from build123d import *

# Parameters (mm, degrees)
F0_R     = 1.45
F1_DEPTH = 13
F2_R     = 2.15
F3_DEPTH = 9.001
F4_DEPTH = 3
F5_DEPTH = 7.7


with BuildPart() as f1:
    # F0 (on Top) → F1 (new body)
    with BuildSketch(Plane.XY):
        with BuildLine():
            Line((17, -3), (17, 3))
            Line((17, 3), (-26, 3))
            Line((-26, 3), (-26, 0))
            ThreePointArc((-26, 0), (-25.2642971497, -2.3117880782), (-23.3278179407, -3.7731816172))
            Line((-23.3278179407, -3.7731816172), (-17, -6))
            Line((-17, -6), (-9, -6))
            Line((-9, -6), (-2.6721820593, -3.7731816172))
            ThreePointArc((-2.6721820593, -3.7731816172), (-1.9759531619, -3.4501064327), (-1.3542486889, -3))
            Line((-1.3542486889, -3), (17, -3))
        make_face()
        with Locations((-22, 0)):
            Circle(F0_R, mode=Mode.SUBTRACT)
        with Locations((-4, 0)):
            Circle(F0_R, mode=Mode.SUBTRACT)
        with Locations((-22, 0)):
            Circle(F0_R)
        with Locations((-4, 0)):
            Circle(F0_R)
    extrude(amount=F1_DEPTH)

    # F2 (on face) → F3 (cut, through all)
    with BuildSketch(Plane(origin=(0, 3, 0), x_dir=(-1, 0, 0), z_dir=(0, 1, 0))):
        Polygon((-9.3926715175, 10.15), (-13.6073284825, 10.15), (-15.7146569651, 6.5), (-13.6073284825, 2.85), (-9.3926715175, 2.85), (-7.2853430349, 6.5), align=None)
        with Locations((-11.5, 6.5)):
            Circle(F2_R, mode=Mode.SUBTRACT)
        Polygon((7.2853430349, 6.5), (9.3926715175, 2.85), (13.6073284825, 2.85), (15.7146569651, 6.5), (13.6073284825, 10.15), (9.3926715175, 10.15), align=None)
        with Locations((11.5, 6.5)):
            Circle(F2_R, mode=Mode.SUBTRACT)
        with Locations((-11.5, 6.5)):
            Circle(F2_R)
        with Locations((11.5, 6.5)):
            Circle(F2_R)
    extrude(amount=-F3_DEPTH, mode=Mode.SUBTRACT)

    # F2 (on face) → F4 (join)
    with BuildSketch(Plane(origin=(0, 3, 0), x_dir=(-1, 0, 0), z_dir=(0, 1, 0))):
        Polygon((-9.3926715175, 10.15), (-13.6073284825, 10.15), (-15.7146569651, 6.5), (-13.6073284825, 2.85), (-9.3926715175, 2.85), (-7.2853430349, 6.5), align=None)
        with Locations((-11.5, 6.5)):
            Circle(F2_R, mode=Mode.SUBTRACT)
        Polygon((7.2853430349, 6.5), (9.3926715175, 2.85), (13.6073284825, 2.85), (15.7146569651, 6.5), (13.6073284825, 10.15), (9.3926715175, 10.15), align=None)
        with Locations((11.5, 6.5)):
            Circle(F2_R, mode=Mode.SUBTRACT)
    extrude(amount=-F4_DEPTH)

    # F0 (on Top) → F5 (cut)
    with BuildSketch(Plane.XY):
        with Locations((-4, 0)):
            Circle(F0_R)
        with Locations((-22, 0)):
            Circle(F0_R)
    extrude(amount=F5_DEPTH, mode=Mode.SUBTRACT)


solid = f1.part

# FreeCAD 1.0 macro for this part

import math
import FreeCAD as App
import Part
import Sketcher
from FreeCAD import Vector
Q = App.Units.Quantity

doc = App.newDocument("Part")
params = doc.addObject("Spreadsheet::Sheet", "Params")
for row, (alias, value) in enumerate([
    ("sketch1_radius", "4 mm"),
    ("sketch1_width", "43 mm"),
    ("sketch1_width2", "8 mm"),
    ("sketch1_height", "6 mm"),
    ("sketch1_height2", "3 mm"),
    ("pad1_length", "13 mm"),
    ("sketch3_diameter", "4.3 mm"),
    ("pad2_length", "3 mm"),
    ("sketch4_diameter", "2.9 mm"),
    ("pocket2_length", "7.7 mm"),
], start=1):
    params.set(f"A{row}", alias)
    params.set(f"B{row}", "=" + value)
    params.setAlias(f"B{row}", alias)

body = doc.addObject("PartDesign::Body", "Body")

# Sketch on XY plane
sketch1 = doc.addObject("Sketcher::SketchObject", "Sketch")
body.addObject(sketch1)
sketch1.AttachmentSupport = (doc.XY_Plane, [""])
sketch1.MapMode = "FlatFace"
sketch1.addGeometry([
    Part.LineSegment(Vector(17, -3, 0), Vector(17, 3, 0)),  # 0
    Part.LineSegment(Vector(17, 3, 0), Vector(-26, 3, 0)),  # 1
    Part.LineSegment(Vector(-26, 3, 0), Vector(-26, 0, 0)),  # 2
    Part.ArcOfCircle(Part.Circle(Vector(-22, 0, 0), Vector(0, 0, 1), 4), math.radians(180), math.radians(250.612552)),  # 3
    Part.LineSegment(Vector(-23.327818, -3.773182, 0), Vector(-17, -6, 0)),  # 4
    Part.LineSegment(Vector(-17, -6, 0), Vector(-9, -6, 0)),  # 5
    Part.LineSegment(Vector(-9, -6, 0), Vector(-2.672182, -3.773182, 0)),  # 6
    Part.ArcOfCircle(Part.Circle(Vector(-4, 0, 0), Vector(0, 0, 1), 4), math.radians(-70.612552), math.radians(-48.590378)),  # 7
    Part.LineSegment(Vector(-1.354249, -3, 0), Vector(17, -3, 0)),  # 8
], False)
sketch1.addConstraint([
    Sketcher.Constraint("Coincident", 0, 2, 1, 1),
    Sketcher.Constraint("Coincident", 1, 2, 2, 1),
    Sketcher.Constraint("Tangent", 2, 2, 3, 1),
    Sketcher.Constraint("Tangent", 3, 2, 4, 1),
    Sketcher.Constraint("Coincident", 4, 2, 5, 1),
    Sketcher.Constraint("Coincident", 5, 2, 6, 1),
    Sketcher.Constraint("Tangent", 6, 2, 7, 1),
    Sketcher.Constraint("Coincident", 7, 2, 8, 1),
    Sketcher.Constraint("Coincident", 8, 2, 0, 1),
    Sketcher.Constraint("Vertical", 0),
    Sketcher.Constraint("Horizontal", 1),
    Sketcher.Constraint("Vertical", 2),
    Sketcher.Constraint("Horizontal", 5),
    Sketcher.Constraint("Horizontal", 8),
    Sketcher.Constraint("Equal", 3, 7),
    Sketcher.Constraint("PointOnObject", 3, 3, -1),
    Sketcher.Constraint("PointOnObject", 7, 3, -1),
    Sketcher.Constraint("Horizontal", 3, 2, 6, 2),
    Sketcher.Constraint("Radius", 3, 4.0),
    Sketcher.Constraint("DistanceX", 1, 2, 1, 1, 43.0),
    Sketcher.Constraint("DistanceX", 5, 1, 5, 2, 8.0),
    Sketcher.Constraint("DistanceY", 0, 1, 0, 2, 6.0),
    Sketcher.Constraint("DistanceY", 2, 2, 2, 1, 3.0),
    Sketcher.Constraint("DistanceX", 3, 3, -1, 1, 22.0),
    Sketcher.Constraint("DistanceX", 7, 3, -1, 1, 4.0),
    Sketcher.Constraint("DistanceY", 4, 2, -1, 1, 6.0),
])
sketch1.setExpression("Constraints[18]", "Params.sketch1_radius")
sketch1.setExpression("Constraints[19]", "Params.sketch1_width")
sketch1.setExpression("Constraints[20]", "Params.sketch1_width2")
sketch1.setExpression("Constraints[21]", "Params.sketch1_height")
sketch1.setExpression("Constraints[22]", "Params.sketch1_height2")
pad1 = doc.addObject("PartDesign::Pad", "Pad")
body.addObject(pad1)
pad1.Profile = sketch1
pad1.setExpression("Length", "Params.pad1_length")

# Sketch on XZ plane
sketch2 = doc.addObject("Sketcher::SketchObject", "Sketch001")
body.addObject(sketch2)
sketch2.AttachmentSupport = (doc.XZ_Plane, [""])
sketch2.MapMode = "FlatFace"
sketch2.AttachmentOffset = App.Placement(Vector(0, 0, -3), App.Rotation())
sketch2.addGeometry([
    Part.LineSegment(Vector(9.392672, 10.15, 0), Vector(13.607328, 10.15, 0)),  # 0
    Part.LineSegment(Vector(13.607328, 10.15, 0), Vector(15.714657, 6.5, 0)),  # 1
    Part.LineSegment(Vector(15.714657, 6.5, 0), Vector(13.607328, 2.85, 0)),  # 2
    Part.LineSegment(Vector(13.607328, 2.85, 0), Vector(9.392672, 2.85, 0)),  # 3
    Part.LineSegment(Vector(9.392672, 2.85, 0), Vector(7.285343, 6.5, 0)),  # 4
    Part.LineSegment(Vector(7.285343, 6.5, 0), Vector(9.392672, 10.15, 0)),  # 5
    Part.LineSegment(Vector(-7.285343, 6.5, 0), Vector(-9.392672, 2.85, 0)),  # 6
    Part.LineSegment(Vector(-9.392672, 2.85, 0), Vector(-13.607328, 2.85, 0)),  # 7
    Part.LineSegment(Vector(-13.607328, 2.85, 0), Vector(-15.714657, 6.5, 0)),  # 8
    Part.LineSegment(Vector(-15.714657, 6.5, 0), Vector(-13.607328, 10.15, 0)),  # 9
    Part.LineSegment(Vector(-13.607328, 10.15, 0), Vector(-9.392672, 10.15, 0)),  # 10
    Part.LineSegment(Vector(-9.392672, 10.15, 0), Vector(-7.285343, 6.5, 0)),  # 11
], False)
sketch2.addConstraint([
    Sketcher.Constraint("Coincident", 0, 2, 1, 1),
    Sketcher.Constraint("Coincident", 1, 2, 2, 1),
    Sketcher.Constraint("Coincident", 2, 2, 3, 1),
    Sketcher.Constraint("Coincident", 3, 2, 4, 1),
    Sketcher.Constraint("Coincident", 4, 2, 5, 1),
    Sketcher.Constraint("Coincident", 5, 2, 0, 1),
    Sketcher.Constraint("Coincident", 6, 2, 7, 1),
    Sketcher.Constraint("Coincident", 7, 2, 8, 1),
    Sketcher.Constraint("Coincident", 8, 2, 9, 1),
    Sketcher.Constraint("Coincident", 9, 2, 10, 1),
    Sketcher.Constraint("Coincident", 10, 2, 11, 1),
    Sketcher.Constraint("Coincident", 11, 2, 6, 1),
    Sketcher.Constraint("Horizontal", 0),
    Sketcher.Constraint("Horizontal", 3),
    Sketcher.Constraint("Horizontal", 7),
    Sketcher.Constraint("Horizontal", 10),
    Sketcher.Constraint("Symmetric", 3, 2, 6, 2, -2),
    Sketcher.Constraint("Symmetric", 1, 2, 8, 2, -2),
    Sketcher.Constraint("Symmetric", 0, 2, 9, 2, -2),
    Sketcher.Constraint("Symmetric", 4, 2, 11, 2, -2),
    Sketcher.Constraint("Parallel", 1, 4),
    Sketcher.Constraint("Parallel", 2, 5),
    Sketcher.Constraint("Parallel", 5, 6),
    Sketcher.Constraint("Parallel", 4, 8),
    Sketcher.Constraint("Parallel", 8, 11),
    Sketcher.Constraint("Horizontal", 1, 2, 4, 2),
    Sketcher.Constraint("Vertical", 0, 2, 2, 2),
    Sketcher.Constraint("Angle", 1, Q("-60 deg")),
    Sketcher.Constraint("DistanceX", 6, 2, 2, 2, 23.0),
    Sketcher.Constraint("DistanceY", -1, 1, 1, 2, 6.5),
    Sketcher.Constraint("DistanceY", 2, 2, 0, 2, 7.3),
    Sketcher.Constraint("DistanceX", 0, 1, 0, 2, 4.214657),
])
pocket1 = doc.addObject("PartDesign::Pocket", "Pocket")
body.addObject(pocket1)
pocket1.Profile = sketch2
pocket1.Type = "ThroughAll"
pocket1.Reversed = True

# Sketch on XZ plane
sketch3 = doc.addObject("Sketcher::SketchObject", "Sketch002")
body.addObject(sketch3)
sketch3.AttachmentSupport = (doc.XZ_Plane, [""])
sketch3.MapMode = "FlatFace"
sketch3.AttachmentOffset = App.Placement(Vector(0, 0, -3), App.Rotation())
sketch3.addGeometry([
    Part.LineSegment(Vector(9.392672, 10.15, 0), Vector(13.607328, 10.15, 0)),  # 0
    Part.LineSegment(Vector(13.607328, 10.15, 0), Vector(15.714657, 6.5, 0)),  # 1
    Part.LineSegment(Vector(15.714657, 6.5, 0), Vector(13.607328, 2.85, 0)),  # 2
    Part.LineSegment(Vector(13.607328, 2.85, 0), Vector(9.392672, 2.85, 0)),  # 3
    Part.LineSegment(Vector(9.392672, 2.85, 0), Vector(7.285343, 6.5, 0)),  # 4
    Part.LineSegment(Vector(7.285343, 6.5, 0), Vector(9.392672, 10.15, 0)),  # 5
    Part.Circle(Vector(11.5, 6.5, 0), Vector(0, 0, 1), 2.15),  # 6
    Part.LineSegment(Vector(-7.285343, 6.5, 0), Vector(-9.392672, 2.85, 0)),  # 7
    Part.LineSegment(Vector(-9.392672, 2.85, 0), Vector(-13.607328, 2.85, 0)),  # 8
    Part.LineSegment(Vector(-13.607328, 2.85, 0), Vector(-15.714657, 6.5, 0)),  # 9
    Part.LineSegment(Vector(-15.714657, 6.5, 0), Vector(-13.607328, 10.15, 0)),  # 10
    Part.LineSegment(Vector(-13.607328, 10.15, 0), Vector(-9.392672, 10.15, 0)),  # 11
    Part.LineSegment(Vector(-9.392672, 10.15, 0), Vector(-7.285343, 6.5, 0)),  # 12
    Part.Circle(Vector(-11.5, 6.5, 0), Vector(0, 0, 1), 2.15),  # 13
], False)
sketch3.addConstraint([
    Sketcher.Constraint("Coincident", 0, 2, 1, 1),
    Sketcher.Constraint("Coincident", 1, 2, 2, 1),
    Sketcher.Constraint("Coincident", 2, 2, 3, 1),
    Sketcher.Constraint("Coincident", 3, 2, 4, 1),
    Sketcher.Constraint("Coincident", 4, 2, 5, 1),
    Sketcher.Constraint("Coincident", 5, 2, 0, 1),
    Sketcher.Constraint("Coincident", 7, 2, 8, 1),
    Sketcher.Constraint("Coincident", 8, 2, 9, 1),
    Sketcher.Constraint("Coincident", 9, 2, 10, 1),
    Sketcher.Constraint("Coincident", 10, 2, 11, 1),
    Sketcher.Constraint("Coincident", 11, 2, 12, 1),
    Sketcher.Constraint("Coincident", 12, 2, 7, 1),
    Sketcher.Constraint("Horizontal", 0),
    Sketcher.Constraint("Horizontal", 3),
    Sketcher.Constraint("Horizontal", 8),
    Sketcher.Constraint("Horizontal", 11),
    Sketcher.Constraint("Equal", 6, 13),
    Sketcher.Constraint("Symmetric", 6, 3, 13, 3, -2),
    Sketcher.Constraint("Symmetric", 3, 2, 7, 2, -2),
    Sketcher.Constraint("Symmetric", 1, 2, 9, 2, -2),
    Sketcher.Constraint("Symmetric", 0, 2, 10, 2, -2),
    Sketcher.Constraint("Symmetric", 4, 2, 12, 2, -2),
    Sketcher.Constraint("Parallel", 1, 4),
    Sketcher.Constraint("Parallel", 2, 5),
    Sketcher.Constraint("Parallel", 5, 7),
    Sketcher.Constraint("Parallel", 4, 9),
    Sketcher.Constraint("Parallel", 9, 12),
    Sketcher.Constraint("Horizontal", 13, 3, 1, 2),
    Sketcher.Constraint("Horizontal", 1, 2, 4, 2),
    Sketcher.Constraint("Vertical", 0, 2, 2, 2),
    Sketcher.Constraint("Diameter", 6, 4.3),
    Sketcher.Constraint("Angle", 1, Q("-60 deg")),
    Sketcher.Constraint("DistanceX", 13, 3, 6, 3, 23.0),
    Sketcher.Constraint("DistanceX", 8, 2, 3, 2, 23.0),
    Sketcher.Constraint("DistanceY", -1, 1, 6, 3, 6.5),
    Sketcher.Constraint("DistanceY", 2, 2, 0, 2, 7.3),
    Sketcher.Constraint("DistanceX", 0, 1, 0, 2, 4.214657),
])
sketch3.setExpression("Constraints[30]", "Params.sketch3_diameter")
pad2 = doc.addObject("PartDesign::Pad", "Pad001")
body.addObject(pad2)
pad2.Profile = sketch3
pad2.setExpression("Length", "Params.pad2_length")

# Sketch on XY plane
sketch4 = doc.addObject("Sketcher::SketchObject", "Sketch003")
body.addObject(sketch4)
sketch4.AttachmentSupport = (doc.XY_Plane, [""])
sketch4.MapMode = "FlatFace"
sketch4.addGeometry([
    Part.Circle(Vector(-4, 0, 0), Vector(0, 0, 1), 1.45),
    Part.Circle(Vector(-22, 0, 0), Vector(0, 0, 1), 1.45),
], False)
sketch4.addConstraint([
    Sketcher.Constraint("Equal", 0, 1),
    Sketcher.Constraint("PointOnObject", 0, 3, -1),
    Sketcher.Constraint("PointOnObject", 1, 3, -1),
    Sketcher.Constraint("Diameter", 0, 2.9),
    Sketcher.Constraint("DistanceX", 0, 3, -1, 1, 4.0),
    Sketcher.Constraint("DistanceX", 1, 3, -1, 1, 22.0),
])
sketch4.setExpression("Constraints[3]", "Params.sketch4_diameter")
pocket2 = doc.addObject("PartDesign::Pocket", "Pocket001")
body.addObject(pocket2)
pocket2.Profile = sketch4
pocket2.setExpression("Length", "Params.pocket2_length")
pocket2.Reversed = True

doc.recompute()
